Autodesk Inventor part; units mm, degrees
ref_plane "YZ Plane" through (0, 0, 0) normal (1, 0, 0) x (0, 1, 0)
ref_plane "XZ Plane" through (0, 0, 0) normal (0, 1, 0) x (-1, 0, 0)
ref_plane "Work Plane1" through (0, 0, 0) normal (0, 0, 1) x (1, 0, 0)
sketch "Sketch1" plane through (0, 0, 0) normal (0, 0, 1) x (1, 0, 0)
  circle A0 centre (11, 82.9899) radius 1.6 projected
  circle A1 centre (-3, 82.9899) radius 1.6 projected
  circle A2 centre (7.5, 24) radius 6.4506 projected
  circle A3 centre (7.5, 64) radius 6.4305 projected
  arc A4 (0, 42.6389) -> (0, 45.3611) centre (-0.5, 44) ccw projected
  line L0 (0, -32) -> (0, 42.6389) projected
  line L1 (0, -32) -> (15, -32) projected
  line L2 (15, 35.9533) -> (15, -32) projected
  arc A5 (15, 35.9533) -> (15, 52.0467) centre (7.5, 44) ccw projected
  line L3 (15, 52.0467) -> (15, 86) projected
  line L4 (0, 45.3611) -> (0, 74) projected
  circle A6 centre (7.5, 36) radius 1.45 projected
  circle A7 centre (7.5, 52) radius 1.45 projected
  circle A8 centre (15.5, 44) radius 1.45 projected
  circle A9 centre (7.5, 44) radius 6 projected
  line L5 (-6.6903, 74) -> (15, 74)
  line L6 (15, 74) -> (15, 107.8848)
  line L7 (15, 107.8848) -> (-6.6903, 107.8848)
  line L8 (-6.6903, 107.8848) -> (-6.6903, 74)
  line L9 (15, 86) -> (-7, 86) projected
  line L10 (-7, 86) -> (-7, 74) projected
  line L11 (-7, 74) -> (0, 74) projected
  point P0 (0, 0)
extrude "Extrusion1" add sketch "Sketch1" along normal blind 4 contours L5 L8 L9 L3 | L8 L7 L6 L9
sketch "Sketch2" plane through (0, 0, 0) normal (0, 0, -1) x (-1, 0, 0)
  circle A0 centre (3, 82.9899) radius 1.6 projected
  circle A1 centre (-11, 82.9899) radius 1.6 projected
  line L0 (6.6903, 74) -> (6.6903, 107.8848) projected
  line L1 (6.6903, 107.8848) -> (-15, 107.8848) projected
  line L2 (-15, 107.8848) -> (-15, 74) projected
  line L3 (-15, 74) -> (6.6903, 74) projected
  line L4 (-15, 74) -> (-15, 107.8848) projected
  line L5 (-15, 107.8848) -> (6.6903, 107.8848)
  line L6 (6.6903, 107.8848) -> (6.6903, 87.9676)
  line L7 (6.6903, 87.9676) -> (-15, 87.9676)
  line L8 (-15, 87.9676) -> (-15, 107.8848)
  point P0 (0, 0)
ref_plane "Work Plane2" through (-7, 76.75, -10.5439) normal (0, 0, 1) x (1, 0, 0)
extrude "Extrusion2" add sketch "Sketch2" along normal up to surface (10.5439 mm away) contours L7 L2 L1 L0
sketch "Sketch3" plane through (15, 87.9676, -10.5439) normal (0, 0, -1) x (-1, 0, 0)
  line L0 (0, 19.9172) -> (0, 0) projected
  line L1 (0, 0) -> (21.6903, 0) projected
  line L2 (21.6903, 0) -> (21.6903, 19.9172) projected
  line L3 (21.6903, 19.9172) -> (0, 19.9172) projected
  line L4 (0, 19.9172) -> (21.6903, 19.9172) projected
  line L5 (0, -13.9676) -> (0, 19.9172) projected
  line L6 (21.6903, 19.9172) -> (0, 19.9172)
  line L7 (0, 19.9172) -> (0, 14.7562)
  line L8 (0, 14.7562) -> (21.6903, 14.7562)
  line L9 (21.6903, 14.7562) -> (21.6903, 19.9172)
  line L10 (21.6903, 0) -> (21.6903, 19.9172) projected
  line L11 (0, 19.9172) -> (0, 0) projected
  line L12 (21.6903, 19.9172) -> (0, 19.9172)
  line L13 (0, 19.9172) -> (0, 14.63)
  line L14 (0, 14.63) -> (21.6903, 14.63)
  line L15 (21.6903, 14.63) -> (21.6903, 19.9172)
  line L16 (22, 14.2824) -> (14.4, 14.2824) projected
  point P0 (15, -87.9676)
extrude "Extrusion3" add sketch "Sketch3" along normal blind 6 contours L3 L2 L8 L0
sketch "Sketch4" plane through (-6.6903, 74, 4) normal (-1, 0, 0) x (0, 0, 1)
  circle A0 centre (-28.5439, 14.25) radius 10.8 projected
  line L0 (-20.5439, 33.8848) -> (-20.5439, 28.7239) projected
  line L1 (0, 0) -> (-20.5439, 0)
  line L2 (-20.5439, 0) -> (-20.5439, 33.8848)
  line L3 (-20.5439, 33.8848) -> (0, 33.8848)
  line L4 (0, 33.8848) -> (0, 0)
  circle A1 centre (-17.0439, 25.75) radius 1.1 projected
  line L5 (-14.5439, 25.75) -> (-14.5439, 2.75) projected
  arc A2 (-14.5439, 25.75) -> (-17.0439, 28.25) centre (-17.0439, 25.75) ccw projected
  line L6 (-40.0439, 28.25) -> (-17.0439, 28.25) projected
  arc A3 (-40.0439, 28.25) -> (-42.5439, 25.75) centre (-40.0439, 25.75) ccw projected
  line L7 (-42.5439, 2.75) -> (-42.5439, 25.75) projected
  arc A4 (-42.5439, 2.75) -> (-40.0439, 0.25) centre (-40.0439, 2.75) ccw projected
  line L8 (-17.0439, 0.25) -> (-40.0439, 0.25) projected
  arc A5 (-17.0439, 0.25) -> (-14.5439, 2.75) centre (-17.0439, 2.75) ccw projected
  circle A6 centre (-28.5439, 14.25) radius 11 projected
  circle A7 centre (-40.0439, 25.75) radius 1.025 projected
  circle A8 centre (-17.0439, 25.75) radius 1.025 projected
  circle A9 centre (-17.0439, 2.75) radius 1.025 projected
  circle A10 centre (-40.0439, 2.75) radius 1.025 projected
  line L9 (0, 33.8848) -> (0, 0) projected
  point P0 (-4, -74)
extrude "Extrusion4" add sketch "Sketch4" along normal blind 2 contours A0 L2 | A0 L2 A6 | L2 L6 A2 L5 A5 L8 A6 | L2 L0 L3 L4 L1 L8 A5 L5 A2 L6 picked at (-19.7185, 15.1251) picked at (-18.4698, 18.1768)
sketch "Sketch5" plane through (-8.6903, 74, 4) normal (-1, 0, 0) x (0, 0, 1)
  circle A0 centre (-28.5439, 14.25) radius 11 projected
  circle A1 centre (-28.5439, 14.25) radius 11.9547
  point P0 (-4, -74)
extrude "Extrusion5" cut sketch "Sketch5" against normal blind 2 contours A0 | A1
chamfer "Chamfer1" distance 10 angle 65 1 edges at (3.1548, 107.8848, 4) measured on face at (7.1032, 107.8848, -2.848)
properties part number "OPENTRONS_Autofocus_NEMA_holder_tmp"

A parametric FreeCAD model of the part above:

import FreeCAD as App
import Part
import Sketcher
Q = App.Units.Quantity


def edges_at(feature, points):
    """Names of the edges that pass closest to the given points."""
    edges = feature.Shape.Edges
    near = lambda p: min(range(len(edges)), key=lambda i: edges[i].distToShape(Part.Vertex(*p))[0])
    return sorted({f"Edge{near(p) + 1}" for p in points})


def add_polygon(sketch, points):
    """Adds a closed chain of lines whose ends are joined by coincident constraints."""
    first, n = sketch.GeometryCount, len(points)
    for a, b in zip(points, points[1:] + points[:1]):
        sketch.addGeometry(Part.LineSegment(App.Vector(*a, 0), App.Vector(*b, 0)), False)
    for i in range(n):
        sketch.addConstraint(Sketcher.Constraint("Coincident", first + i, 2, first + (i + 1) % n, 1))

doc = App.newDocument("Part")
body = doc.addObject("PartDesign::Body", "Body")

# Sketch on XY plane
sketch1 = body.newObject("Sketcher::SketchObject", "Sketch")
sketch1.AttachmentSupport = (doc.getObject("XY_Plane"), [""])
sketch1.MapMode = "FlatFace"
add_polygon(sketch1, [(-6.6903, 74), (15, 74), (15, 107.8848), (-6.6903, 107.8848)])  # lines 0-3
sketch1.addGeometry(Part.Circle(App.Vector(-3, 82.9899, 0), App.Vector(0, 0, 1), 1.6), False)  # 4
sketch1.addGeometry(Part.Circle(App.Vector(11, 82.9899, 0), App.Vector(0, 0, 1), 1.6), False)  # 5
sketch1.addConstraint([
    Sketcher.Constraint("Horizontal", 0),
    Sketcher.Constraint("Vertical", 1),
    Sketcher.Constraint("Horizontal", 2),
    Sketcher.Constraint("Vertical", 3),
    Sketcher.Constraint("Equal", 4, 5),
    Sketcher.Constraint("Horizontal", 4, 3, 5, 3),
    Sketcher.Constraint("Diameter", 4, Q("3.2 mm")),
    Sketcher.Constraint("DistanceX", 4, 3, -1, 1, Q("3 mm")),
    Sketcher.Constraint("DistanceX", -1, 1, 5, 3, Q("11 mm")),
    Sketcher.Constraint("DistanceX", -1, 1, 0, 2, Q("15 mm")),
    Sketcher.Constraint("DistanceY", -1, 1, 0, 2, Q("74 mm")),
    Sketcher.Constraint("DistanceY", -1, 1, 4, 3, Q("82.99 mm")),
    Sketcher.Constraint("DistanceX", 0, 1, 0, 2, Q("21.6903 mm")),
    Sketcher.Constraint("DistanceY", 1, 1, 1, 2, Q("33.8848 mm")),
])
pad1 = body.newObject("PartDesign::Pad", "Pad")
pad1.Profile = sketch1
pad1.Length = 4

# Sketch on XY plane
sketch2 = body.newObject("Sketcher::SketchObject", "Sketch001")
sketch2.AttachmentSupport = (doc.getObject("XY_Plane"), [""])
sketch2.MapMode = "FlatFace"
add_polygon(sketch2, [(15, 87.9676), (-6.6903, 87.9676), (-6.6903, 107.8848), (15, 107.8848)])  # lines 0-3
sketch2.addConstraint([
    Sketcher.Constraint("Horizontal", 0),
    Sketcher.Constraint("Vertical", 1),
    Sketcher.Constraint("Horizontal", 2),
    Sketcher.Constraint("Vertical", 3),
    Sketcher.Constraint("DistanceX", -1, 1, 2, 2, Q("15 mm")),
    Sketcher.Constraint("DistanceX", 0, 2, 0, 1, Q("21.6903 mm")),
    Sketcher.Constraint("DistanceY", 1, 1, 1, 2, Q("19.9172 mm")),
    Sketcher.Constraint("DistanceY", -1, 1, 0, 2, Q("87.9676 mm")),
])
pad2 = body.newObject("PartDesign::Pad", "Pad001")
pad2.Profile = sketch2
pad2.Length = 10.5439
pad2.Reversed = True

# Sketch on XY plane
sketch3 = body.newObject("Sketcher::SketchObject", "Sketch002")
sketch3.AttachmentSupport = (doc.getObject("XY_Plane"), [""])
sketch3.MapMode = "FlatFace"
sketch3.AttachmentOffset = App.Placement(App.Vector(0, 0, -10.5439), App.Rotation())
add_polygon(sketch3, [(-6.6903, 107.8848), (15, 107.8848), (15, 102.7238), (-6.6903, 102.7238)])  # lines 0-3
sketch3.addConstraint([
    Sketcher.Constraint("Horizontal", 0),
    Sketcher.Constraint("Vertical", 1),
    Sketcher.Constraint("Horizontal", 2),
    Sketcher.Constraint("Vertical", 3),
    Sketcher.Constraint("DistanceX", -1, 1, 0, 2, Q("15 mm")),
    Sketcher.Constraint("DistanceY", 1, 2, 1, 1, Q("5.161 mm")),
    Sketcher.Constraint("DistanceX", 0, 1, 0, 2, Q("21.6903 mm")),
    Sketcher.Constraint("DistanceY", -1, 1, 0, 2, Q("107.8848 mm")),
])
pad3 = body.newObject("PartDesign::Pad", "Pad002")
pad3.Profile = sketch3
pad3.Length = 6
pad3.Reversed = True

# Sketch on YZ plane
sketch4 = body.newObject("Sketcher::SketchObject", "Sketch003")
sketch4.AttachmentSupport = (doc.getObject("YZ_Plane"), [""])
sketch4.MapMode = "FlatFace"
sketch4.AttachmentOffset = App.Placement(App.Vector(0, 0, -6.6903), App.Rotation())
add_polygon(sketch4, [(74, -16.5439), (74, 4), (107.8848, 4), (107.8848, -16.5439)])  # lines 0-3
sketch4.addGeometry(Part.Circle(App.Vector(76.75, -13.0439, 0), App.Vector(0, 0, 1), 1.025), False)  # 4
sketch4.addGeometry(Part.Circle(App.Vector(99.75, -13.0439, 0), App.Vector(0, 0, 1), 1.1), False)  # 5
sketch4.addConstraint([
    Sketcher.Constraint("Vertical", 0),
    Sketcher.Constraint("Horizontal", 1),
    Sketcher.Constraint("Vertical", 2),
    Sketcher.Constraint("Horizontal", 3),
    Sketcher.Constraint("Horizontal", 4, 3, 5, 3),
    Sketcher.Constraint("Diameter", 5, Q("2.2 mm")),
    Sketcher.Constraint("Diameter", 4, Q("2.05 mm")),
    Sketcher.Constraint("DistanceX", -1, 1, 0, 2, Q("74 mm")),
    Sketcher.Constraint("DistanceY", -1, 1, 0, 2, Q("4 mm")),
    Sketcher.Constraint("DistanceX", 4, 3, 5, 3, Q("23 mm")),
    Sketcher.Constraint("DistanceY", 2, 2, 5, 3, Q("3.5 mm")),
    Sketcher.Constraint("DistanceY", 0, 1, 0, 2, Q("20.544 mm")),
    Sketcher.Constraint("DistanceX", -1, 1, 4, 3, Q("76.75 mm")),
    Sketcher.Constraint("DistanceX", 1, 1, 1, 2, Q("33.8848 mm")),
])
pad4 = body.newObject("PartDesign::Pad", "Pad003")
pad4.Profile = sketch4
pad4.Length = 2
pad4.Reversed = True

# Sketch on YZ plane
sketch5 = body.newObject("Sketcher::SketchObject", "Sketch004")
sketch5.AttachmentSupport = (doc.getObject("YZ_Plane"), [""])
sketch5.MapMode = "FlatFace"
sketch5.AttachmentOffset = App.Placement(App.Vector(0, 0, -8.6903), App.Rotation())
sketch5.addGeometry(Part.Circle(App.Vector(88.25, -24.5439, 0), App.Vector(0, 0, 1), 11.9547), False)
sketch5.addConstraint([
    Sketcher.Constraint("Diameter", 0, Q("23.9094 mm")),
    Sketcher.Constraint("DistanceX", -1, 1, 0, 3, Q("88.25 mm")),
    Sketcher.Constraint("DistanceY", 0, 3, -1, 1, Q("24.544 mm")),
])
pocket1 = body.newObject("PartDesign::Pocket", "Pocket")
pocket1.Profile = sketch5
pocket1.Length = 2
pocket1.Reversed = True
doc.recompute()

chamfer = body.newObject("PartDesign::Chamfer", "Chamfer")
chamfer.Base = (pocket1, edges_at(pocket1, [(3.155, 107.885, 4)]))
chamfer.ChamferType = "Distance and Angle"
chamfer.Size = 10
chamfer.Angle = 65

doc.recompute()
